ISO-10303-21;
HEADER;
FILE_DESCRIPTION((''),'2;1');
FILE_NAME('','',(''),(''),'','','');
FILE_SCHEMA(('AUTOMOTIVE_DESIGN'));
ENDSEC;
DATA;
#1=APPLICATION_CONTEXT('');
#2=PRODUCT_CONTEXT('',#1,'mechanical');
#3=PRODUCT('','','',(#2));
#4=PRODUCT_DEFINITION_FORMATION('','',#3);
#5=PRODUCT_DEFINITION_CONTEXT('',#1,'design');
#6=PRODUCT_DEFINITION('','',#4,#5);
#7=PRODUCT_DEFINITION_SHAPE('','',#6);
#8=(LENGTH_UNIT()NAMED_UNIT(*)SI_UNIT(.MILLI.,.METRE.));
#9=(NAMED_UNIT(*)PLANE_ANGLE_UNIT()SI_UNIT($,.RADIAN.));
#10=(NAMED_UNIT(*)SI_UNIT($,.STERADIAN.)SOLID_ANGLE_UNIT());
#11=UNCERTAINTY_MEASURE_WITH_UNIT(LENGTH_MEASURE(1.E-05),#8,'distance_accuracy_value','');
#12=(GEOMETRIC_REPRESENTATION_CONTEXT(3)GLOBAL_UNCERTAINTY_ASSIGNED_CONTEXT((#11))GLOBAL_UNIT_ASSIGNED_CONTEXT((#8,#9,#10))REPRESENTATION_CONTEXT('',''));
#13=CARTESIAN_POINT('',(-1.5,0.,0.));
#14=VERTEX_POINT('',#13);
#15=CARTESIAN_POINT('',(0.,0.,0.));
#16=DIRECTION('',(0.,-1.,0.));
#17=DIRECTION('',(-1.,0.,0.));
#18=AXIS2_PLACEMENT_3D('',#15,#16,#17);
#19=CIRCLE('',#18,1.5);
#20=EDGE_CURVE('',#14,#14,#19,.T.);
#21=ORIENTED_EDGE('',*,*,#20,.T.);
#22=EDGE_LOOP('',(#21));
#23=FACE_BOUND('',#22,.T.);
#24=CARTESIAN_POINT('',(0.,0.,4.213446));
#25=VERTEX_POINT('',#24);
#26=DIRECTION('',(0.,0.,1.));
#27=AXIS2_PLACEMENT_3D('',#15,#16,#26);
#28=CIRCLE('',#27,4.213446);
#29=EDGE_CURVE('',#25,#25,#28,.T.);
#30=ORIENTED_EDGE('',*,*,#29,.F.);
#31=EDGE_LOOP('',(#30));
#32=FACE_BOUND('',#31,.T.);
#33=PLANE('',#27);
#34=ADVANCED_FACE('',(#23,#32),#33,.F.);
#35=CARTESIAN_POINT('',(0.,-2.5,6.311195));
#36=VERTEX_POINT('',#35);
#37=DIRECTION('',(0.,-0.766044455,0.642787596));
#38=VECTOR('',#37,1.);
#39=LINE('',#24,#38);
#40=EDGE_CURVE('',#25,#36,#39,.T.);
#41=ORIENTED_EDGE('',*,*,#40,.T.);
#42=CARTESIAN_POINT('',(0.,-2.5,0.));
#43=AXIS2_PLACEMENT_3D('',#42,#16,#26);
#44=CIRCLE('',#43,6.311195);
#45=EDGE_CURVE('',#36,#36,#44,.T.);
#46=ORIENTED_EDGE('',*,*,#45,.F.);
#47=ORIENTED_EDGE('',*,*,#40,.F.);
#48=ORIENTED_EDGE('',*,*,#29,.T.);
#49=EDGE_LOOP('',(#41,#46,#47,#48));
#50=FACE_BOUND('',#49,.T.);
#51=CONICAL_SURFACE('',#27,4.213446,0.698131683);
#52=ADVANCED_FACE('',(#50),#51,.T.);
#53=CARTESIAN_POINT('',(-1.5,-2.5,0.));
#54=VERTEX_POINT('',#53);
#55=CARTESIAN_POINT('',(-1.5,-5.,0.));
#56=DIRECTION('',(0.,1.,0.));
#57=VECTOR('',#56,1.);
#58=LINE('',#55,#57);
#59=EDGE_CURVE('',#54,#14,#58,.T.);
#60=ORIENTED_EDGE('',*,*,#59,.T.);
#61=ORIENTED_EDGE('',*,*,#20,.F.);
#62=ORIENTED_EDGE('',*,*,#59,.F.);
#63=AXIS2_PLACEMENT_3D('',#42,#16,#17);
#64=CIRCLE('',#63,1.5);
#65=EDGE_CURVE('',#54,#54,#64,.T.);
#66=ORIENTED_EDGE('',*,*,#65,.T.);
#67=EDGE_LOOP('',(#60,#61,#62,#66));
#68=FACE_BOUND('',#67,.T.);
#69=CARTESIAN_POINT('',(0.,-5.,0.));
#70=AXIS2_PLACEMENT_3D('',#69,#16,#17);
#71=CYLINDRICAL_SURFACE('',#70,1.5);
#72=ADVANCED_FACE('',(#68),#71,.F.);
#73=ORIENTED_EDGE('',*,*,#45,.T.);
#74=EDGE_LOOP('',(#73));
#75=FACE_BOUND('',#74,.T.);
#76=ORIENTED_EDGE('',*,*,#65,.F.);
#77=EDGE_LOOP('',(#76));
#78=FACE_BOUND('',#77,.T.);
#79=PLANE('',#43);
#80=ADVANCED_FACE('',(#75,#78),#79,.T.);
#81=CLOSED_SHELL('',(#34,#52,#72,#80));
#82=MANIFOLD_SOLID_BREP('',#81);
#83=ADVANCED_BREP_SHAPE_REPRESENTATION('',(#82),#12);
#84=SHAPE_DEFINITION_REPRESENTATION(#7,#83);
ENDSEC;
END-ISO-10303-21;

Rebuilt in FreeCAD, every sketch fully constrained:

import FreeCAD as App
import Part
import Sketcher

V = App.Vector
Q = App.Units.Quantity


def add_polygon(sketch, points):
    """Adds a closed chain of lines whose ends are joined by coincident constraints."""
    first, n = sketch.GeometryCount, len(points)
    for a, b in zip(points, points[1:] + points[:1]):
        sketch.addGeometry(Part.LineSegment(App.Vector(*a, 0), App.Vector(*b, 0)), False)
    for i in range(n):
        sketch.addConstraint(Sketcher.Constraint("Coincident", first + i, 2, first + (i + 1) % n, 1))

doc = App.newDocument("Part")
body = doc.addObject("PartDesign::Body", "Body")

sketch1 = doc.addObject("Sketcher::SketchObject", "Sketch")
body.addObject(sketch1)
sketch1.AttachmentSupport = (doc.XY_Plane, [""])
sketch1.MapMode = "FlatFace"
sketch1.addGeometry(Part.Circle(V(0, 0, 0), V(0, 0, 1), 1.5), False)
sketch1.addConstraint([
    Sketcher.Constraint("Coincident", 0, 3, -1, 1),
    Sketcher.Constraint("Diameter", 0, 3.0),
])
pad1 = doc.addObject("PartDesign::Pad", "Pad")
body.addObject(pad1)
pad1.Profile = sketch1
pad1.Length = 10
body2 = doc.addObject("PartDesign::Body", "Body001")
doc.recompute()

body.Placement = App.Placement(V(0, 0, 0), App.Rotation(V(1, 0, 0), 90))
boolean = doc.addObject("PartDesign::Boolean", "Boolean")
body2.addObject(boolean)
boolean.Type = "Fuse"
boolean.addObjects([body])
body3 = doc.addObject("PartDesign::Body", "Body002")
doc.recompute()

body2.Placement = App.Placement(V(0, 5, 0), App.Rotation(V(0, 0, 1), 0))
boolean2 = doc.addObject("PartDesign::Boolean", "Boolean001")
body3.addObject(boolean2)
boolean2.Type = "Fuse"
boolean2.addObjects([body2])
body4 = doc.addObject("PartDesign::Body", "Body003")

sketch2 = doc.addObject("Sketcher::SketchObject", "Sketch001")
body4.addObject(sketch2)
sketch2.AttachmentSupport = (doc.getObject("YZ_Plane003"), [""])
sketch2.MapMode = "FlatFace"
add_polygon(sketch2, [(2.5, 6.3), (0, 4.2), (0, 0), (2.5, 0)])
sketch2.addConstraint([
    Sketcher.Constraint("Vertical", 1),
    Sketcher.Constraint("Horizontal", 2),
    Sketcher.Constraint("Vertical", 3),
    Sketcher.Constraint("Coincident", 1, 2, -1, 1),
    Sketcher.Constraint("Angle", 0, Q("-140.000001 deg")),
    Sketcher.Constraint("DistanceX", 2, 1, 2, 2, 2.5),
    Sketcher.Constraint("DistanceY", 1, 2, 1, 1, 4.213446),
])
revolution = doc.addObject("PartDesign::Revolution", "Revolution")
body4.addObject(revolution)
revolution.Profile = sketch2
revolution.ReferenceAxis = (sketch2, ["H_Axis"])
revolution.Angle = 360
doc.recompute()

boolean3 = doc.addObject("PartDesign::Boolean", "Boolean002")
body4.addObject(boolean3)
boolean3.Type = "Cut"
boolean3.addObjects([body3])
body5 = doc.addObject("PartDesign::Body", "Body004")
doc.recompute()

body4.Placement = App.Placement(V(0, 0, 0), App.Rotation(V(0, 0, 1), 180))
boolean4 = doc.addObject("PartDesign::Boolean", "Boolean003")
body5.addObject(boolean4)
boolean4.Type = "Fuse"
boolean4.addObjects([body4])

doc.recompute()
